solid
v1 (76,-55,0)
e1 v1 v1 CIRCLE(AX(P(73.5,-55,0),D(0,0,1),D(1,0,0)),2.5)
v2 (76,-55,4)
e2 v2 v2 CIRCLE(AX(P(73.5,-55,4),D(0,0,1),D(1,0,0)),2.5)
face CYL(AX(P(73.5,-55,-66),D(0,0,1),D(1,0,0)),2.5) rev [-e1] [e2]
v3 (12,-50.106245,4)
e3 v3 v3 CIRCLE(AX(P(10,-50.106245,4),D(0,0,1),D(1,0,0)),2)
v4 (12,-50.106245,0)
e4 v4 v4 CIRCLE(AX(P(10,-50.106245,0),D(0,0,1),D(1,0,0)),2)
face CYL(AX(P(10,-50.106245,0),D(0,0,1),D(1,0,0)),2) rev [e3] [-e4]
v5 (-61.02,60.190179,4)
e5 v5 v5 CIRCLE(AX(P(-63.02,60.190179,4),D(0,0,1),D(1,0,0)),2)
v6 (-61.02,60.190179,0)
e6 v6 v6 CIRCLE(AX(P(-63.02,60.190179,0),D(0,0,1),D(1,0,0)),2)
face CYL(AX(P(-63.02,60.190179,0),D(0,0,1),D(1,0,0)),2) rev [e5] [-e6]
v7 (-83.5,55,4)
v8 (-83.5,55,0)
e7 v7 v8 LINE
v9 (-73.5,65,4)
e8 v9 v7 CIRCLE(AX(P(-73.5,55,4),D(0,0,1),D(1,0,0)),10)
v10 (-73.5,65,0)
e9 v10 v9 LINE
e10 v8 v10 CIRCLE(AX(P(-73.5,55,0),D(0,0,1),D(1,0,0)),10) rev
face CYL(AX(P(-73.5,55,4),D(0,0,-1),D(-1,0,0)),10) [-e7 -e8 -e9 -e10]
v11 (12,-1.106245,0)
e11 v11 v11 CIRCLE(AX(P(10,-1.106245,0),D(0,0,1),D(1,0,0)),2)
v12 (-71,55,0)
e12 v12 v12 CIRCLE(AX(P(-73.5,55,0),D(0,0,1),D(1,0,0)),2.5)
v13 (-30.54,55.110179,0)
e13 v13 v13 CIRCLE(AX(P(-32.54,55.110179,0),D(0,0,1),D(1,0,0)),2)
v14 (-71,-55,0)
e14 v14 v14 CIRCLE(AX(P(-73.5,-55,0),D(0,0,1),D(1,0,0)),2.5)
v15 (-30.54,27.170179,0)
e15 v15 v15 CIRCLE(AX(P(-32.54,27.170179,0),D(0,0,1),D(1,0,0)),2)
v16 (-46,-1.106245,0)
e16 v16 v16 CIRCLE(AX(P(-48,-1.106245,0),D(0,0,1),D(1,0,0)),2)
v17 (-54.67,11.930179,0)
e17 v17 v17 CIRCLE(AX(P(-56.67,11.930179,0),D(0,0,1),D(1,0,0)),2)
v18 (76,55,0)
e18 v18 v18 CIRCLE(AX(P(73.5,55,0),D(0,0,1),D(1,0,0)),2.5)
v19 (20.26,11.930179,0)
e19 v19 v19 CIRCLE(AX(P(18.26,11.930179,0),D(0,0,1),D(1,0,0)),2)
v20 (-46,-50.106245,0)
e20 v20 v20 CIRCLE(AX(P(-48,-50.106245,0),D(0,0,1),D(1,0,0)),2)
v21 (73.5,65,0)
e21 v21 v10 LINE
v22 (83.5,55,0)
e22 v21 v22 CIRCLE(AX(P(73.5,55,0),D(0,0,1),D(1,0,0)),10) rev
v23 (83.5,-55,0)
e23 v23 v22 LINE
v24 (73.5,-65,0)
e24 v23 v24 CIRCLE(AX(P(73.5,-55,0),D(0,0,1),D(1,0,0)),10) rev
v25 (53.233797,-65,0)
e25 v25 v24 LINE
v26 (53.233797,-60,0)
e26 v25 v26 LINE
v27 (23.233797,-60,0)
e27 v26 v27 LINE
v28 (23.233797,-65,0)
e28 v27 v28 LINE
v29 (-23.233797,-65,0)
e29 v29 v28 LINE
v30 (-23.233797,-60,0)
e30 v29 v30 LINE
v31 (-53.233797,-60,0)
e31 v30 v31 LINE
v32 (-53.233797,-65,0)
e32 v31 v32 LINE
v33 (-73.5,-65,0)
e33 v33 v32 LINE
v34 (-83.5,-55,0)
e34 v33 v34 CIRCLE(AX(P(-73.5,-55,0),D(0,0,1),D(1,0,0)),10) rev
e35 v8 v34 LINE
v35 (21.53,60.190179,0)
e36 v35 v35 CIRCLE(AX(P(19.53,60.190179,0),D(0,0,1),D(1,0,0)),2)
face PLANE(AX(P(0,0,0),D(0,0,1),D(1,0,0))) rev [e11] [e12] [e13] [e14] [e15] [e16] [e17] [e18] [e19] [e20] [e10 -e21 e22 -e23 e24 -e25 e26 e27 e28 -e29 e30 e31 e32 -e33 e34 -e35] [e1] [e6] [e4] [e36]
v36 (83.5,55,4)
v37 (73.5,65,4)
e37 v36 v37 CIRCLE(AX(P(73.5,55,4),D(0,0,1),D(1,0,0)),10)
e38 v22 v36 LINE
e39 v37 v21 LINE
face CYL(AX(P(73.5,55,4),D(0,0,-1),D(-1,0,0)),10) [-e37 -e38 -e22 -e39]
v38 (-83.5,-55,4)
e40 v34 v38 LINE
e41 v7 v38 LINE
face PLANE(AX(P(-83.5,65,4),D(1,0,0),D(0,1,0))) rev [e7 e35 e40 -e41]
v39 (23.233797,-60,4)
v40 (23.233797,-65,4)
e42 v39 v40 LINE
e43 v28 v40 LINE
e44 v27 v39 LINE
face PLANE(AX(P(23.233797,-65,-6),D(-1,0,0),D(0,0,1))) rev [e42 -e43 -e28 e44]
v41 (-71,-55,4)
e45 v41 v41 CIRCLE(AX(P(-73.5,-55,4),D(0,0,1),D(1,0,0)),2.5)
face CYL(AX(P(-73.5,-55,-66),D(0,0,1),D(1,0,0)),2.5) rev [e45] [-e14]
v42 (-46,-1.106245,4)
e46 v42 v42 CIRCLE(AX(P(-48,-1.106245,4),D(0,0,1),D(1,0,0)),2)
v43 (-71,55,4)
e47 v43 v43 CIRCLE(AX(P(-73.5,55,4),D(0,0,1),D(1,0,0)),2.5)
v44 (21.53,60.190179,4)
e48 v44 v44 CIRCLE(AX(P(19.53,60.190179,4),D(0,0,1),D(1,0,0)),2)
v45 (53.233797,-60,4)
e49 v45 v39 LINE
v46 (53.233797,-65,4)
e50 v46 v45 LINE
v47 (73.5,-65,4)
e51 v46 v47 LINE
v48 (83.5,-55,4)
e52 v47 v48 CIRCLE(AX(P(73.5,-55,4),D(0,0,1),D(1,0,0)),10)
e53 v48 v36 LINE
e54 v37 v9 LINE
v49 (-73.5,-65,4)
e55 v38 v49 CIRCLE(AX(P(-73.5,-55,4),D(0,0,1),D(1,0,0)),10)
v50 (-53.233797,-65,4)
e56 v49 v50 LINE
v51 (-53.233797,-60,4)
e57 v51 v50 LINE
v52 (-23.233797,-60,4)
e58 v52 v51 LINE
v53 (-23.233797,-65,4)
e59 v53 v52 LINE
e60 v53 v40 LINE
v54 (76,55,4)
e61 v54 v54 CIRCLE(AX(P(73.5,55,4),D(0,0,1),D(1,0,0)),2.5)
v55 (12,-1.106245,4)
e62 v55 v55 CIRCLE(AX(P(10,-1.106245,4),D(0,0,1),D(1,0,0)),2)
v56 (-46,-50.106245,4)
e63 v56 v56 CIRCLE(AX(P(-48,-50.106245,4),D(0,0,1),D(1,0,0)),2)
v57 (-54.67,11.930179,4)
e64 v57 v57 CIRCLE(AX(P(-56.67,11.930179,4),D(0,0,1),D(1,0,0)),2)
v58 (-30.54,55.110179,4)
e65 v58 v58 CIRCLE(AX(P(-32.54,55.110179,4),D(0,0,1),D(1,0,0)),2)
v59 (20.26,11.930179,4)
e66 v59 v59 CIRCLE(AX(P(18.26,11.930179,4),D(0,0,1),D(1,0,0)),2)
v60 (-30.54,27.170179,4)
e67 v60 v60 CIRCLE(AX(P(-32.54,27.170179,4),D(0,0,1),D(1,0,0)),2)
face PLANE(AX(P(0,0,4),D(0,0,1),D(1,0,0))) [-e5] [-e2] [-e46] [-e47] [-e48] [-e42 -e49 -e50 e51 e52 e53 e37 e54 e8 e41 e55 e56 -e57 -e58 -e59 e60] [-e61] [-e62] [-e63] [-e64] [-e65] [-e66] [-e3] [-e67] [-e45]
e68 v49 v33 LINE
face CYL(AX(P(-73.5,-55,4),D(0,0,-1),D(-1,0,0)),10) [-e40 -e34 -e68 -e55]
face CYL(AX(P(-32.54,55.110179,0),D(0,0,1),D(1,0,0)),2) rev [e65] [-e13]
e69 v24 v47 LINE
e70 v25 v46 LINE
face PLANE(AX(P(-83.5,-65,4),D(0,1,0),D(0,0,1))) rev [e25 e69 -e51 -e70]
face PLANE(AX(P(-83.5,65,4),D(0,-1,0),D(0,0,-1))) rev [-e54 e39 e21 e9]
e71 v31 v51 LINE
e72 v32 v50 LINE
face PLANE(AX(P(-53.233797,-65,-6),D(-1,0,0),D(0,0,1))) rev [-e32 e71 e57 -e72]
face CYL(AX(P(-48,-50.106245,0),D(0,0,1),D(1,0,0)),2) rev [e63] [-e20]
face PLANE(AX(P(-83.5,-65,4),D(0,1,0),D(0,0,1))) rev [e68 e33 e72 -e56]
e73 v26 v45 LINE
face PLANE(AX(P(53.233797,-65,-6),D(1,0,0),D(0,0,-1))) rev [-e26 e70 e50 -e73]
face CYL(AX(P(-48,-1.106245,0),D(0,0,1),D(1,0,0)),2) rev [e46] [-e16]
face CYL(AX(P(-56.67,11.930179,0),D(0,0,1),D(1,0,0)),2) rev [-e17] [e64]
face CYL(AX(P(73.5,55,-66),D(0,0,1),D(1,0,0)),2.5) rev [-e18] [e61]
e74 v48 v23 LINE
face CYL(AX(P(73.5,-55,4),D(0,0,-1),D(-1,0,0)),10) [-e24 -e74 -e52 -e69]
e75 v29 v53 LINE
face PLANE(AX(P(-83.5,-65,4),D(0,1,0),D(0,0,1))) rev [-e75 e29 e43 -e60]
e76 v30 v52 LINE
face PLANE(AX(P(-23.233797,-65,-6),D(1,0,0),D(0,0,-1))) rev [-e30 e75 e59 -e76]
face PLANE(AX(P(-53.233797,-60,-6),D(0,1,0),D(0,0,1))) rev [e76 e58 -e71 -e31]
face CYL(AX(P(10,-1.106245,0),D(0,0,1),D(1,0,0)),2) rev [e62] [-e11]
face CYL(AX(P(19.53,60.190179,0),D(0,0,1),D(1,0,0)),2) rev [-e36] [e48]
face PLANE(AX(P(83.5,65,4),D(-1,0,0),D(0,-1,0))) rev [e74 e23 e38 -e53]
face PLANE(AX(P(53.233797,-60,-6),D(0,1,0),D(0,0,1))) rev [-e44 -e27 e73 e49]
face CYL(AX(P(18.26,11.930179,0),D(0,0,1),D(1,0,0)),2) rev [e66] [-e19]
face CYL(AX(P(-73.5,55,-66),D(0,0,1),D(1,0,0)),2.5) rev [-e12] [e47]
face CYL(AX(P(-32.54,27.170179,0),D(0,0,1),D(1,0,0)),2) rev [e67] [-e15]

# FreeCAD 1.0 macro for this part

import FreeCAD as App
import Part
import Sketcher

V = App.Vector
Q = App.Units.Quantity


def edges_at(feature, points):
    """Names of the edges that pass closest to the given points."""
    edges = feature.Shape.Edges
    near = lambda p: min(range(len(edges)), key=lambda i: edges[i].distToShape(Part.Vertex(*p))[0])
    return sorted({f"Edge{near(p) + 1}" for p in points})


def add_polygon(sketch, points):
    """Adds a closed chain of lines whose ends are joined by coincident constraints."""
    first, n = sketch.GeometryCount, len(points)
    for a, b in zip(points, points[1:] + points[:1]):
        sketch.addGeometry(Part.LineSegment(App.Vector(*a, 0), App.Vector(*b, 0)), False)
    for i in range(n):
        sketch.addConstraint(Sketcher.Constraint("Coincident", first + i, 2, first + (i + 1) % n, 1))

doc = App.newDocument("Part")
body = doc.addObject("PartDesign::Body", "Body")

# Sketch on XY plane
sketch1 = body.newObject("Sketcher::SketchObject", "Sketch")
sketch1.AttachmentSupport = (doc.getObject("XY_Plane"), [""])
sketch1.MapMode = "FlatFace"
add_polygon(sketch1, [(-84, 65), (-84, -65), (84, -65), (84, 65)])  # lines 0-3
sketch1.addConstraint(Sketcher.Constraint("Vertical", 0))
sketch1.addConstraint(Sketcher.Constraint("Horizontal", 1))
sketch1.addConstraint(Sketcher.Constraint("Vertical", 2))
sketch1.addConstraint(Sketcher.Constraint("Horizontal", 3))
sketch1.addConstraint(Sketcher.Constraint("Symmetric", 0, 2, 2, 2, -1, 1))
sketch1.addConstraint(Sketcher.Constraint("DistanceX", 1, 1, 1, 2, Q("167 mm")))
sketch1.addConstraint(Sketcher.Constraint("DistanceY", 0, 2, 0, 1, Q("130 mm")))
pad1 = body.newObject("PartDesign::Pad", "Pad")
pad1.Profile = sketch1
pad1.Length = 4
doc.recompute()

fillet = body.newObject("PartDesign::Fillet", "Fillet")
fillet.Base = (pad1, edges_at(pad1, [(-83.5, -65, 2), (-83.5, 65, 2)]))
fillet.Radius = 10
doc.recompute()

fillet2 = body.newObject("PartDesign::Fillet", "Fillet001")
fillet2.Base = (fillet, edges_at(fillet, [(83.5, -65, 2), (83.5, 65, 2)]))
fillet2.Radius = 10

# Sketch on XY plane
sketch2 = body.newObject("Sketcher::SketchObject", "Sketch001")
sketch2.AttachmentSupport = (doc.getObject("XY_Plane"), [""])
sketch2.MapMode = "FlatFace"
sketch2.AttachmentOffset = App.Placement(V(0, 0, 4), App.Rotation())
sketch2.addGeometry(Part.Circle(V(-73.5, 55, 0), V(0, 0, 1), 2.5), False)
sketch2.addGeometry(Part.Circle(V(73.5, 55, 0), V(0, 0, 1), 2.5), False)
sketch2.addGeometry(Part.Circle(V(-73.5, -55, 0), V(0, 0, 1), 2.5), False)
sketch2.addGeometry(Part.Circle(V(73.5, -55, 0), V(0, 0, 1), 2.5), False)
sketch2.addConstraint(Sketcher.Constraint("Equal", 0, 1))
sketch2.addConstraint(Sketcher.Constraint("Equal", 1, 2))
sketch2.addConstraint(Sketcher.Constraint("Equal", 2, 3))
sketch2.addConstraint(Sketcher.Constraint("Symmetric", 1, 3, 2, 3, -1, 1))
sketch2.addConstraint(Sketcher.Constraint("Symmetric", 0, 3, 3, 3, -1, 1))
sketch2.addConstraint(Sketcher.Constraint("Symmetric", 0, 3, 1, 3, -2))
sketch2.addConstraint(Sketcher.Constraint("Diameter", 0, Q("5 mm")))
sketch2.addConstraint(Sketcher.Constraint("DistanceY", -1, 1, 0, 3, Q("55 mm")))
sketch2.addConstraint(Sketcher.Constraint("DistanceX", 0, 3, 1, 3, Q("147 mm")))
pocket1 = body.newObject("PartDesign::Pocket", "Pocket")
pocket1.Profile = sketch2
pocket1.Length = 70

# Sketch on XY plane
sketch3 = body.newObject("Sketcher::SketchObject", "Sketch002")
sketch3.AttachmentSupport = (doc.getObject("XY_Plane"), [""])
sketch3.MapMode = "FlatFace"
sketch3.AttachmentOffset = App.Placement(V(0, 0, 4), App.Rotation())
add_polygon(sketch3, [(-53, -60), (-53, -65), (-23, -65), (-23, -60)])  # lines 0-3
add_polygon(sketch3, [(23, -60), (23, -65), (53, -65), (53, -60)])  # lines 4-7
sketch3.addConstraint(Sketcher.Constraint("Vertical", 0))
sketch3.addConstraint(Sketcher.Constraint("Horizontal", 1))
sketch3.addConstraint(Sketcher.Constraint("Vertical", 2))
sketch3.addConstraint(Sketcher.Constraint("Horizontal", 3))
sketch3.addConstraint(Sketcher.Constraint("Vertical", 4))
sketch3.addConstraint(Sketcher.Constraint("Horizontal", 5))
sketch3.addConstraint(Sketcher.Constraint("Vertical", 6))
sketch3.addConstraint(Sketcher.Constraint("Horizontal", 7))
sketch3.addConstraint(Sketcher.Constraint("Symmetric", 1, 2, 4, 2, -2))
sketch3.addConstraint(Sketcher.Constraint("Symmetric", 3, 2, 6, 2, -2))
sketch3.addConstraint(Sketcher.Constraint("DistanceX", 1, 1, 1, 2, Q("30 mm")))
sketch3.addConstraint(Sketcher.Constraint("DistanceY", 0, 2, 0, 1, Q("5 mm")))
sketch3.addConstraint(Sketcher.Constraint("DistanceY", 0, 2, -1, 1, Q("65 mm")))
sketch3.addConstraint(Sketcher.Constraint("DistanceX", 0, 2, -1, 1, Q("53.233797 mm")))
pocket2 = body.newObject("PartDesign::Pocket", "Pocket001")
pocket2.Profile = sketch3
pocket2.Length = 10

# Sketch on XY plane
sketch4 = body.newObject("Sketcher::SketchObject", "Sketch003")
sketch4.AttachmentSupport = (doc.getObject("XY_Plane"), [""])
sketch4.MapMode = "FlatFace"
sketch4.AttachmentOffset = App.Placement(V(0, 0, 4), App.Rotation())
sketch4.addGeometry(Part.Circle(V(-48, -1.1, 0), V(0, 0, 1), 2), False)
sketch4.addGeometry(Part.Circle(V(10, -50.1, 0), V(0, 0, 1), 2), False)
sketch4.addGeometry(Part.Circle(V(-48, -50.1, 0), V(0, 0, 1), 2), False)
sketch4.addGeometry(Part.Circle(V(10, -1.1, 0), V(0, 0, 1), 2), False)
sketch4.addConstraint(Sketcher.Constraint("Equal", 0, 1))
sketch4.addConstraint(Sketcher.Constraint("Equal", 1, 2))
sketch4.addConstraint(Sketcher.Constraint("Equal", 2, 3))
sketch4.addConstraint(Sketcher.Constraint("Horizontal", 1, 3, 2, 3))
sketch4.addConstraint(Sketcher.Constraint("Horizontal", 0, 3, 3, 3))
sketch4.addConstraint(Sketcher.Constraint("Vertical", 0, 3, 2, 3))
sketch4.addConstraint(Sketcher.Constraint("Vertical", 1, 3, 3, 3))
sketch4.addConstraint(Sketcher.Constraint("Diameter", 0, Q("4 mm")))
sketch4.addConstraint(Sketcher.Constraint("DistanceX", 0, 3, -1, 1, Q("48 mm")))
sketch4.addConstraint(Sketcher.Constraint("DistanceX", -1, 1, 1, 3, Q("10 mm")))
sketch4.addConstraint(Sketcher.Constraint("DistanceY", 1, 3, 0, 3, Q("49 mm")))
sketch4.addConstraint(Sketcher.Constraint("DistanceY", 0, 3, -1, 1, Q("1.106245 mm")))
pocket3 = body.newObject("PartDesign::Pocket", "Pocket002")
pocket3.Profile = sketch4
pocket3.Type = "ThroughAll"

# Sketch on XY plane
sketch5 = body.newObject("Sketcher::SketchObject", "Sketch004")
sketch5.AttachmentSupport = (doc.getObject("XY_Plane"), [""])
sketch5.MapMode = "FlatFace"
sketch5.AttachmentOffset = App.Placement(V(0, 0, 4), App.Rotation())
sketch5.addGeometry(Part.Circle(V(-63, 60.2, 0), V(0, 0, 1), 2), False)
sketch5.addGeometry(Part.Circle(V(-32.5, 55.1, 0), V(0, 0, 1), 2), False)
sketch5.addGeometry(Part.Circle(V(-32.5, 27.2, 0), V(0, 0, 1), 2), False)
sketch5.addGeometry(Part.Circle(V(19.5, 60.2, 0), V(0, 0, 1), 2), False)
sketch5.addGeometry(Part.Circle(V(18.3, 11.9, 0), V(0, 0, 1), 2), False)
sketch5.addGeometry(Part.Circle(V(-56.7, 11.9, 0), V(0, 0, 1), 2), False)
sketch5.addConstraint(Sketcher.Constraint("Equal", 0, 1))
sketch5.addConstraint(Sketcher.Constraint("Equal", 1, 2))
sketch5.addConstraint(Sketcher.Constraint("Equal", 2, 3))
sketch5.addConstraint(Sketcher.Constraint("Equal", 3, 4))
sketch5.addConstraint(Sketcher.Constraint("Equal", 4, 5))
sketch5.addConstraint(Sketcher.Constraint("Horizontal", 0, 3, 3, 3))
sketch5.addConstraint(Sketcher.Constraint("Horizontal", 4, 3, 5, 3))
sketch5.addConstraint(Sketcher.Constraint("Vertical", 1, 3, 2, 3))
sketch5.addConstraint(Sketcher.Constraint("Diameter", 0, Q("4 mm")))
sketch5.addConstraint(Sketcher.Constraint("DistanceX", 2, 3, 4, 3, Q("50.8 mm")))
sketch5.addConstraint(Sketcher.Constraint("DistanceX", 5, 3, 3, 3, Q("76.2 mm")))
sketch5.addConstraint(Sketcher.Constraint("DistanceX", 0, 3, -1, 1, Q("63.02 mm")))
sketch5.addConstraint(Sketcher.Constraint("DistanceX", 1, 3, -1, 1, Q("32.54 mm")))
sketch5.addConstraint(Sketcher.Constraint("DistanceX", -1, 1, 3, 3, Q("19.53 mm")))
sketch5.addConstraint(Sketcher.Constraint("DistanceY", 1, 3, 0, 3, Q("5.08 mm")))
sketch5.addConstraint(Sketcher.Constraint("DistanceY", 2, 3, 1, 3, Q("27.94 mm")))
sketch5.addConstraint(Sketcher.Constraint("DistanceY", 4, 3, 3, 3, Q("48.26 mm")))
sketch5.addConstraint(Sketcher.Constraint("DistanceY", -1, 1, 0, 3, Q("60.190179 mm")))
pocket4 = body.newObject("PartDesign::Pocket", "Pocket003")
pocket4.Profile = sketch5
pocket4.Type = "ThroughAll"

doc.recompute()
